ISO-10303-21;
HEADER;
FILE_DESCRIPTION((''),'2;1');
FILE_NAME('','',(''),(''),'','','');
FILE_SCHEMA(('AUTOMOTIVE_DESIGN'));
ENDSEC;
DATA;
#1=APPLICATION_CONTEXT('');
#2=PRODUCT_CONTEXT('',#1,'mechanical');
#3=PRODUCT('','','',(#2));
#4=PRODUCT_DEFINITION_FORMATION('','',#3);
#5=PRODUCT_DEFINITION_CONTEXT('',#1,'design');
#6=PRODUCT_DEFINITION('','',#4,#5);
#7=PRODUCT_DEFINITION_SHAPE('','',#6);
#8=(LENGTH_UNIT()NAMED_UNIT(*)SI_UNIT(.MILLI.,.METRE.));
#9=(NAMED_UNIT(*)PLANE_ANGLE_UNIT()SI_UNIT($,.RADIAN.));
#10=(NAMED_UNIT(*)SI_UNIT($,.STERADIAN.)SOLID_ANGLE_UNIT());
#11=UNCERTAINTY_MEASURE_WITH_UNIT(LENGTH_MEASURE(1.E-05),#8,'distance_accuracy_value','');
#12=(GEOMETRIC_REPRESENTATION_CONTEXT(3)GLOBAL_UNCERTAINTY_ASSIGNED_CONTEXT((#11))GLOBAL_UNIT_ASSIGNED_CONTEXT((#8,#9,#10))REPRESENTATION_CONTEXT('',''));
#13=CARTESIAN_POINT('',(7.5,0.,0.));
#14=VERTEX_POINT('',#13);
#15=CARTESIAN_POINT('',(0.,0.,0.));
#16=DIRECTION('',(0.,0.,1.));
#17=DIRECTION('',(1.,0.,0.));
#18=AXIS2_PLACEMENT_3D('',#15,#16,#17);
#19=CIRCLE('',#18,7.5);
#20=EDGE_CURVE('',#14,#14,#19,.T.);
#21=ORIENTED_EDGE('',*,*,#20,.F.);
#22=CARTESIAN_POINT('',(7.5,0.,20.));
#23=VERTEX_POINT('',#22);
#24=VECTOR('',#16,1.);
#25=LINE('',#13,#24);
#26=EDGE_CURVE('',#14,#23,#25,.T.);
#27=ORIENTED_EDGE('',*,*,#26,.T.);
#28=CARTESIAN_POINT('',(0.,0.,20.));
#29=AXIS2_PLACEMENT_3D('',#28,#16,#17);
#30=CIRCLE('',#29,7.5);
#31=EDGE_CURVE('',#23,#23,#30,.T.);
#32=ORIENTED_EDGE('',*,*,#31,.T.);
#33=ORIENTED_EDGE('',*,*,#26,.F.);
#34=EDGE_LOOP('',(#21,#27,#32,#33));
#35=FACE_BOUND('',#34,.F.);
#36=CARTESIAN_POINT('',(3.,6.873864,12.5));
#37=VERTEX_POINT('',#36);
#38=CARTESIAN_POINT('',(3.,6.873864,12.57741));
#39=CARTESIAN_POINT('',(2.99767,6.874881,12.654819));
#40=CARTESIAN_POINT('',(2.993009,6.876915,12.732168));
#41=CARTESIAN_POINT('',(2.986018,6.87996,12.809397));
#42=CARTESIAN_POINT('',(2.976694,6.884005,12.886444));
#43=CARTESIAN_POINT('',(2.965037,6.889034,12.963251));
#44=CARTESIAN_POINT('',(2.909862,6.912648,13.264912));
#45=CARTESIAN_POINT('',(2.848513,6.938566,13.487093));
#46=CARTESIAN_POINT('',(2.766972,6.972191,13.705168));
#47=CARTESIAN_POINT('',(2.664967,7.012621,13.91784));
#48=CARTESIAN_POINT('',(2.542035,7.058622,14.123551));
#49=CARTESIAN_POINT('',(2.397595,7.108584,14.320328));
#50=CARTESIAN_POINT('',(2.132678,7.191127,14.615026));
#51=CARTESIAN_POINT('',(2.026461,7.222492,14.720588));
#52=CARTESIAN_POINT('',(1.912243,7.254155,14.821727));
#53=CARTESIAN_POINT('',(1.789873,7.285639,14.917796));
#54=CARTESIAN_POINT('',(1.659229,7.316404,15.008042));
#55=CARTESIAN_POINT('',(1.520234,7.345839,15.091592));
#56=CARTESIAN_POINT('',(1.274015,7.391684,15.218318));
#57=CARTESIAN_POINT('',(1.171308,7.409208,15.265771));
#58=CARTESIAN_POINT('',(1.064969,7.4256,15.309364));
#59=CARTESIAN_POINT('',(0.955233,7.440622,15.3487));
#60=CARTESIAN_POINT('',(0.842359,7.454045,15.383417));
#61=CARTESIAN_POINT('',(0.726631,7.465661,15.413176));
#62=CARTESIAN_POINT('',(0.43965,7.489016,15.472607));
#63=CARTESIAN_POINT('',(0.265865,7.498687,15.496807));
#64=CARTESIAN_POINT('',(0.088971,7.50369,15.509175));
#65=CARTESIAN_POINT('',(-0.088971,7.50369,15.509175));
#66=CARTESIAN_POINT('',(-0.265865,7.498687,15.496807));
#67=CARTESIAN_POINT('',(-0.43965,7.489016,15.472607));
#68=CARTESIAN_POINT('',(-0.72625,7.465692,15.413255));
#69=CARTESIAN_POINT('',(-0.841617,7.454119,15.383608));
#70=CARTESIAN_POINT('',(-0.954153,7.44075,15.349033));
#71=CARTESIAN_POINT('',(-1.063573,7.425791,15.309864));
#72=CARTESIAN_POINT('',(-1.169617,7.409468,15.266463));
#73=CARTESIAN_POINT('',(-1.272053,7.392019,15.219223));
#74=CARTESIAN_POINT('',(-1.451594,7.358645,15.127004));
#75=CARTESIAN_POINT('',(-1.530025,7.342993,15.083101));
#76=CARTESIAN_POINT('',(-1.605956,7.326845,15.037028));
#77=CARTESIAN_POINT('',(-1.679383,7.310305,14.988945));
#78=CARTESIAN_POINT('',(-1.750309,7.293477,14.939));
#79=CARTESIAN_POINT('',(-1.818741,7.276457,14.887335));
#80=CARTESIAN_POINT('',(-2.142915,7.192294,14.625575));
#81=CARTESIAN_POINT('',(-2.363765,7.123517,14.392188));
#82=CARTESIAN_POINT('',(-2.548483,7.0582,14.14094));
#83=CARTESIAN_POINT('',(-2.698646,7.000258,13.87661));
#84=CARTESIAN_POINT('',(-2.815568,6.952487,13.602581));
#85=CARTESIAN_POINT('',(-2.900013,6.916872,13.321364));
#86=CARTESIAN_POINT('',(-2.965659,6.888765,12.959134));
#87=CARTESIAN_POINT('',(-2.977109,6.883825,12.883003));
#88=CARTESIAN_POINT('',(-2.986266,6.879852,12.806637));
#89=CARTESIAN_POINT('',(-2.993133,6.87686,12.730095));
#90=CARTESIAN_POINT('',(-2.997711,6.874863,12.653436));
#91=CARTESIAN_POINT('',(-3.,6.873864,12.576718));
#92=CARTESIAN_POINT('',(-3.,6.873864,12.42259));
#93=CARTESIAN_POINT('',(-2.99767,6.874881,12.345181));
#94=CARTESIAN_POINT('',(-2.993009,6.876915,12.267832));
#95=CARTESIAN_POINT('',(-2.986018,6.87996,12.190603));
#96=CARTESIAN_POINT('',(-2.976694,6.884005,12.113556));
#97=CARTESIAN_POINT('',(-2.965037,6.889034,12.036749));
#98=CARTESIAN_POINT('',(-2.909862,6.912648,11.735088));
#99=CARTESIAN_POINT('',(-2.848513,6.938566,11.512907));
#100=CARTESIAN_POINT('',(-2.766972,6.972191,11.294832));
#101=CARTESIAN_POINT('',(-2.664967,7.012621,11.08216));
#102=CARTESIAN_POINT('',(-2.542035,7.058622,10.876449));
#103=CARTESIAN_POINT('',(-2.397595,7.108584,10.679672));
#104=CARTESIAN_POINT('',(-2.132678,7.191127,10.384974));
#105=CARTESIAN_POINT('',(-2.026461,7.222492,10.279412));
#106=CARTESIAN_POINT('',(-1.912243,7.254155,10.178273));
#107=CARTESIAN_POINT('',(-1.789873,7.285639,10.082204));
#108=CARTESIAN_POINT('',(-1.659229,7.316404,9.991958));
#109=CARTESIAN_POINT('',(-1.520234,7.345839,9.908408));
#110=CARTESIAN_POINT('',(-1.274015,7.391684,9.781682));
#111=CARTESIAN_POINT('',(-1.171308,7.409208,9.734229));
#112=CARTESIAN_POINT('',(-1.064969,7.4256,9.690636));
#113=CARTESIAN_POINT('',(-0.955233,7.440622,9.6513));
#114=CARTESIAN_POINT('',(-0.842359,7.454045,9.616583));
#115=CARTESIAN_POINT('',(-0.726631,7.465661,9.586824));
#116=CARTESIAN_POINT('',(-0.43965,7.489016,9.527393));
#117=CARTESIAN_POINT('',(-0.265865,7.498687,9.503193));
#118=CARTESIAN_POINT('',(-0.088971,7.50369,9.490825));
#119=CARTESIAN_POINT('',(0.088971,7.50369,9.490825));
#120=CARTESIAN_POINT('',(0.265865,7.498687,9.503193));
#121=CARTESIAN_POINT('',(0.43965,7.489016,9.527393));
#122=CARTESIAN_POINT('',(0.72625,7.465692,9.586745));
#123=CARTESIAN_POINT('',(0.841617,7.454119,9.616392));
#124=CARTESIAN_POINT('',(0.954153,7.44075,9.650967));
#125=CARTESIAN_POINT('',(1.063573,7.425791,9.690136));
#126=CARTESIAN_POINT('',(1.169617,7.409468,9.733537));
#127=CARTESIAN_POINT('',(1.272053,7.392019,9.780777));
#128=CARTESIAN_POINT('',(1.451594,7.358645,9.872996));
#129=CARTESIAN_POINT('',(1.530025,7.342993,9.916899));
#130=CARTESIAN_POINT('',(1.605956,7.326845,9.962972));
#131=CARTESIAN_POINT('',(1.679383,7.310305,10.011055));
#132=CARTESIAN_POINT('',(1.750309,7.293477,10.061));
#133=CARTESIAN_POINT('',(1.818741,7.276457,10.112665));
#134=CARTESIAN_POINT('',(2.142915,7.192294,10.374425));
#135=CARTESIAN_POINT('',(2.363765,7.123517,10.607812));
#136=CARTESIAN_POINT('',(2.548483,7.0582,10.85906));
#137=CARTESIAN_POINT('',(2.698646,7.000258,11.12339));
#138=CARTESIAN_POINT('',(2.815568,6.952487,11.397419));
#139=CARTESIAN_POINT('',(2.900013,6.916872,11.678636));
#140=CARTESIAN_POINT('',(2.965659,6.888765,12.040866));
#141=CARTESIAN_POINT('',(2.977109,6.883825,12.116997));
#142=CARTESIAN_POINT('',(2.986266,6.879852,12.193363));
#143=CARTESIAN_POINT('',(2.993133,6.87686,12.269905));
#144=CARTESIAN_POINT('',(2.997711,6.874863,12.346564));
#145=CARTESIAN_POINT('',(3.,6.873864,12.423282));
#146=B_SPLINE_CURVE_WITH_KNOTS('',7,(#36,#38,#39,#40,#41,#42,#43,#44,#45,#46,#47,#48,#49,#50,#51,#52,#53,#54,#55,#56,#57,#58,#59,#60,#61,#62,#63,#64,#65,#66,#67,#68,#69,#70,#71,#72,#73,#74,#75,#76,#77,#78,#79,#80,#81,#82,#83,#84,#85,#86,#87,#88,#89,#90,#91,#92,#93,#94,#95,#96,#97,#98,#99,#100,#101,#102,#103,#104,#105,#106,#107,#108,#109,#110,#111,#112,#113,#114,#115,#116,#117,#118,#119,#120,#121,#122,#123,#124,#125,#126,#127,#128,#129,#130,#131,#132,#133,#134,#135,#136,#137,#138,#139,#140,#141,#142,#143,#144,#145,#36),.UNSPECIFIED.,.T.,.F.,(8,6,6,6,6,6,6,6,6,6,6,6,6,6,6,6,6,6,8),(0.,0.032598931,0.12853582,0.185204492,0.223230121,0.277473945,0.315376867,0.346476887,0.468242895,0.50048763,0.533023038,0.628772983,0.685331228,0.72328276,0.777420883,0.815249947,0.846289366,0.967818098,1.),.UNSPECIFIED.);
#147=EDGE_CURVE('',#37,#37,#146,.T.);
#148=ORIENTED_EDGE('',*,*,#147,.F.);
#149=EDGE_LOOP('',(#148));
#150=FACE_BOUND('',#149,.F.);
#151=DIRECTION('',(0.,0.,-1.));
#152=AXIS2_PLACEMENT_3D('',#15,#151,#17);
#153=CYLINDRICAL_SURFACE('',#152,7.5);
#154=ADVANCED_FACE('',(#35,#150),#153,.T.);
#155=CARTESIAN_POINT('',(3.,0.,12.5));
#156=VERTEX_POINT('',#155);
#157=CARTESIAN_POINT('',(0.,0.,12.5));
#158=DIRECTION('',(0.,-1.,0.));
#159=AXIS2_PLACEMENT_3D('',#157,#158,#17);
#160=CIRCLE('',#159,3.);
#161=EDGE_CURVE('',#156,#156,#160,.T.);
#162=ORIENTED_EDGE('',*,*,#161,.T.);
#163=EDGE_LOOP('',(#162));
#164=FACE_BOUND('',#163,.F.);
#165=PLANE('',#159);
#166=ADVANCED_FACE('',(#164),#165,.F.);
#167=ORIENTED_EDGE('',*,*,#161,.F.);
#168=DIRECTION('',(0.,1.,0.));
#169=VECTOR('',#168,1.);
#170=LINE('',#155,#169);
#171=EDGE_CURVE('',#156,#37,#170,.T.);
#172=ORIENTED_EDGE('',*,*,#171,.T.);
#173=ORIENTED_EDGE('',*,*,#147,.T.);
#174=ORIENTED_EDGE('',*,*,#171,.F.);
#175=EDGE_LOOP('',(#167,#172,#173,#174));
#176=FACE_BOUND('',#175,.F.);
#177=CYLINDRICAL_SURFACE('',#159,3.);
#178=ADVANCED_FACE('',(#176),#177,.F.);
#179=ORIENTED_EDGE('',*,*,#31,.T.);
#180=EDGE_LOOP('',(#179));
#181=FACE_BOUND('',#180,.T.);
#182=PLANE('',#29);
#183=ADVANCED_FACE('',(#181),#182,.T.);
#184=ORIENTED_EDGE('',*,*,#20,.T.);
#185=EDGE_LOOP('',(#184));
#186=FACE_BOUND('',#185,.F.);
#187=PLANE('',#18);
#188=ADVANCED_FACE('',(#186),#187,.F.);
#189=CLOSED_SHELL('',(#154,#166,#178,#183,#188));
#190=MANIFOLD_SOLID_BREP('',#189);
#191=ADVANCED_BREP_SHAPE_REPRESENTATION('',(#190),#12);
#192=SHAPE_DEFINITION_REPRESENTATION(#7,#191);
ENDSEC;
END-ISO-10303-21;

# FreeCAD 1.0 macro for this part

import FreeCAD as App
import Part
import Sketcher

doc = App.newDocument("Part")
params = doc.addObject("Spreadsheet::Sheet", "Params")
for row, (alias, value) in enumerate([
    ("sketch1_diameter", "15 mm"),
    ("pad1_length", "20 mm"),
    ("sketch2_diameter", "6 mm"),
    ("pocket1_length", "25 mm"),
], start=1):
    params.set(f"A{row}", alias)
    params.set(f"B{row}", "=" + value)
    params.setAlias(f"B{row}", alias)

body = doc.addObject("PartDesign::Body", "Body")

sketch1 = body.newObject("Sketcher::SketchObject", "Sketch")
sketch1.AttachmentSupport = (doc.getObject("XY_Plane"), [""])
sketch1.MapMode = "FlatFace"
sketch1.addGeometry(Part.Circle(App.Vector(0, 0, 0), App.Vector(0, 0, 1), 8), False)
sketch1.addConstraint([
    Sketcher.Constraint("Coincident", 0, 3, -1, 1),
    Sketcher.Constraint("Diameter", 0, 15.0),
])
sketch1.setExpression("Constraints[1]", "Params.sketch1_diameter")
pad1 = body.newObject("PartDesign::Pad", "Pad")
pad1.Profile = sketch1
pad1.setExpression("Length", "Params.pad1_length")

sketch2 = body.newObject("Sketcher::SketchObject", "Sketch001")
sketch2.AttachmentSupport = (doc.getObject("XZ_Plane"), [""])
sketch2.MapMode = "FlatFace"
sketch2.addGeometry(Part.Circle(App.Vector(0, 12.5, 0), App.Vector(0, 0, 1), 3), False)
sketch2.addConstraint([
    Sketcher.Constraint("PointOnObject", 0, 3, -2),
    Sketcher.Constraint("Diameter", 0, 6.0),
    Sketcher.Constraint("DistanceY", -1, 1, 0, 3, 12.5),
])
sketch2.setExpression("Constraints[1]", "Params.sketch2_diameter")
pocket1 = body.newObject("PartDesign::Pocket", "Pocket")
pocket1.Profile = sketch2
pocket1.setExpression("Length", "Params.pocket1_length")

doc.recompute()
